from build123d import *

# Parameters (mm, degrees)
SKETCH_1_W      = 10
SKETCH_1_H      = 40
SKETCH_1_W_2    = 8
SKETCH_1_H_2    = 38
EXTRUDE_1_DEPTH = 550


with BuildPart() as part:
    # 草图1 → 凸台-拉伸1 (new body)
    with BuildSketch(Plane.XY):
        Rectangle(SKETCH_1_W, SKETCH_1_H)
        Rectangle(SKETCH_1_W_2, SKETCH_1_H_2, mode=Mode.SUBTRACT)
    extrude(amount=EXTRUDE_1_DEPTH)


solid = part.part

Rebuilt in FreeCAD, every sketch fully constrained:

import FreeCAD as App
import Part
import Sketcher
from FreeCAD import Vector

doc = App.newDocument("Part")
params = doc.addObject("Spreadsheet::Sheet", "Params")
for row, (alias, value) in enumerate([
    ("sketch1_width", "10 mm"),
    ("sketch1_width2", "8 mm"),
    ("sketch1_height", "40 mm"),
    ("sketch1_height2", "38 mm"),
    ("pad1_length", "550 mm"),
], start=1):
    params.set(f"A{row}", alias)
    params.set(f"B{row}", "=" + value)
    params.setAlias(f"B{row}", alias)

body = doc.addObject("PartDesign::Body", "Body")

sketch1 = body.newObject("Sketcher::SketchObject", "Sketch")
sketch1.AttachmentSupport = (doc.getObject("XY_Plane"), [""])
sketch1.MapMode = "FlatFace"
sketch1.addGeometry(Part.LineSegment(Vector(-5, 20, 0), Vector(-5, -20, 0)), False)
sketch1.addGeometry(Part.LineSegment(Vector(-5, -20, 0), Vector(5, -20, 0)), False)
sketch1.addGeometry(Part.LineSegment(Vector(5, -20, 0), Vector(5, 20, 0)), False)
sketch1.addGeometry(Part.LineSegment(Vector(5, 20, 0), Vector(-5, 20, 0)), False)
sketch1.addGeometry(Part.LineSegment(Vector(4, -19, 0), Vector(-4, -19, 0)), False)
sketch1.addGeometry(Part.LineSegment(Vector(-4, -19, 0), Vector(-4, 19, 0)), False)
sketch1.addGeometry(Part.LineSegment(Vector(-4, 19, 0), Vector(4, 19, 0)), False)
sketch1.addGeometry(Part.LineSegment(Vector(4, 19, 0), Vector(4, -19, 0)), False)
sketch1.addConstraint(Sketcher.Constraint("Coincident", 0, 2, 1, 1))
sketch1.addConstraint(Sketcher.Constraint("Coincident", 1, 2, 2, 1))
sketch1.addConstraint(Sketcher.Constraint("Coincident", 2, 2, 3, 1))
sketch1.addConstraint(Sketcher.Constraint("Coincident", 3, 2, 0, 1))
sketch1.addConstraint(Sketcher.Constraint("Coincident", 4, 2, 5, 1))
sketch1.addConstraint(Sketcher.Constraint("Coincident", 5, 2, 6, 1))
sketch1.addConstraint(Sketcher.Constraint("Coincident", 6, 2, 7, 1))
sketch1.addConstraint(Sketcher.Constraint("Coincident", 7, 2, 4, 1))
sketch1.addConstraint(Sketcher.Constraint("Vertical", 0))
sketch1.addConstraint(Sketcher.Constraint("Horizontal", 1))
sketch1.addConstraint(Sketcher.Constraint("Vertical", 2))
sketch1.addConstraint(Sketcher.Constraint("Horizontal", 3))
sketch1.addConstraint(Sketcher.Constraint("Horizontal", 4))
sketch1.addConstraint(Sketcher.Constraint("Vertical", 5))
sketch1.addConstraint(Sketcher.Constraint("Horizontal", 6))
sketch1.addConstraint(Sketcher.Constraint("Vertical", 7))
sketch1.addConstraint(Sketcher.Constraint("Symmetric", 0, 2, 2, 2, -1, 1))
sketch1.addConstraint(Sketcher.Constraint("Symmetric", 4, 2, 6, 2, -1, 1))
sketch1.addConstraint(Sketcher.Constraint("DistanceX", 1, 1, 1, 2, 10.0))
sketch1.addConstraint(Sketcher.Constraint("DistanceX", 4, 2, 4, 1, 8.0))
sketch1.addConstraint(Sketcher.Constraint("DistanceY", 0, 2, 0, 1, 40.0))
sketch1.addConstraint(Sketcher.Constraint("DistanceY", 5, 1, 5, 2, 38.0))
sketch1.setExpression("Constraints[18]", "Params.sketch1_width")
sketch1.setExpression("Constraints[19]", "Params.sketch1_width2")
sketch1.setExpression("Constraints[20]", "Params.sketch1_height")
sketch1.setExpression("Constraints[21]", "Params.sketch1_height2")
pad1 = body.newObject("PartDesign::Pad", "Pad")
pad1.Profile = sketch1
pad1.setExpression("Length", "Params.pad1_length")

doc.recompute()
